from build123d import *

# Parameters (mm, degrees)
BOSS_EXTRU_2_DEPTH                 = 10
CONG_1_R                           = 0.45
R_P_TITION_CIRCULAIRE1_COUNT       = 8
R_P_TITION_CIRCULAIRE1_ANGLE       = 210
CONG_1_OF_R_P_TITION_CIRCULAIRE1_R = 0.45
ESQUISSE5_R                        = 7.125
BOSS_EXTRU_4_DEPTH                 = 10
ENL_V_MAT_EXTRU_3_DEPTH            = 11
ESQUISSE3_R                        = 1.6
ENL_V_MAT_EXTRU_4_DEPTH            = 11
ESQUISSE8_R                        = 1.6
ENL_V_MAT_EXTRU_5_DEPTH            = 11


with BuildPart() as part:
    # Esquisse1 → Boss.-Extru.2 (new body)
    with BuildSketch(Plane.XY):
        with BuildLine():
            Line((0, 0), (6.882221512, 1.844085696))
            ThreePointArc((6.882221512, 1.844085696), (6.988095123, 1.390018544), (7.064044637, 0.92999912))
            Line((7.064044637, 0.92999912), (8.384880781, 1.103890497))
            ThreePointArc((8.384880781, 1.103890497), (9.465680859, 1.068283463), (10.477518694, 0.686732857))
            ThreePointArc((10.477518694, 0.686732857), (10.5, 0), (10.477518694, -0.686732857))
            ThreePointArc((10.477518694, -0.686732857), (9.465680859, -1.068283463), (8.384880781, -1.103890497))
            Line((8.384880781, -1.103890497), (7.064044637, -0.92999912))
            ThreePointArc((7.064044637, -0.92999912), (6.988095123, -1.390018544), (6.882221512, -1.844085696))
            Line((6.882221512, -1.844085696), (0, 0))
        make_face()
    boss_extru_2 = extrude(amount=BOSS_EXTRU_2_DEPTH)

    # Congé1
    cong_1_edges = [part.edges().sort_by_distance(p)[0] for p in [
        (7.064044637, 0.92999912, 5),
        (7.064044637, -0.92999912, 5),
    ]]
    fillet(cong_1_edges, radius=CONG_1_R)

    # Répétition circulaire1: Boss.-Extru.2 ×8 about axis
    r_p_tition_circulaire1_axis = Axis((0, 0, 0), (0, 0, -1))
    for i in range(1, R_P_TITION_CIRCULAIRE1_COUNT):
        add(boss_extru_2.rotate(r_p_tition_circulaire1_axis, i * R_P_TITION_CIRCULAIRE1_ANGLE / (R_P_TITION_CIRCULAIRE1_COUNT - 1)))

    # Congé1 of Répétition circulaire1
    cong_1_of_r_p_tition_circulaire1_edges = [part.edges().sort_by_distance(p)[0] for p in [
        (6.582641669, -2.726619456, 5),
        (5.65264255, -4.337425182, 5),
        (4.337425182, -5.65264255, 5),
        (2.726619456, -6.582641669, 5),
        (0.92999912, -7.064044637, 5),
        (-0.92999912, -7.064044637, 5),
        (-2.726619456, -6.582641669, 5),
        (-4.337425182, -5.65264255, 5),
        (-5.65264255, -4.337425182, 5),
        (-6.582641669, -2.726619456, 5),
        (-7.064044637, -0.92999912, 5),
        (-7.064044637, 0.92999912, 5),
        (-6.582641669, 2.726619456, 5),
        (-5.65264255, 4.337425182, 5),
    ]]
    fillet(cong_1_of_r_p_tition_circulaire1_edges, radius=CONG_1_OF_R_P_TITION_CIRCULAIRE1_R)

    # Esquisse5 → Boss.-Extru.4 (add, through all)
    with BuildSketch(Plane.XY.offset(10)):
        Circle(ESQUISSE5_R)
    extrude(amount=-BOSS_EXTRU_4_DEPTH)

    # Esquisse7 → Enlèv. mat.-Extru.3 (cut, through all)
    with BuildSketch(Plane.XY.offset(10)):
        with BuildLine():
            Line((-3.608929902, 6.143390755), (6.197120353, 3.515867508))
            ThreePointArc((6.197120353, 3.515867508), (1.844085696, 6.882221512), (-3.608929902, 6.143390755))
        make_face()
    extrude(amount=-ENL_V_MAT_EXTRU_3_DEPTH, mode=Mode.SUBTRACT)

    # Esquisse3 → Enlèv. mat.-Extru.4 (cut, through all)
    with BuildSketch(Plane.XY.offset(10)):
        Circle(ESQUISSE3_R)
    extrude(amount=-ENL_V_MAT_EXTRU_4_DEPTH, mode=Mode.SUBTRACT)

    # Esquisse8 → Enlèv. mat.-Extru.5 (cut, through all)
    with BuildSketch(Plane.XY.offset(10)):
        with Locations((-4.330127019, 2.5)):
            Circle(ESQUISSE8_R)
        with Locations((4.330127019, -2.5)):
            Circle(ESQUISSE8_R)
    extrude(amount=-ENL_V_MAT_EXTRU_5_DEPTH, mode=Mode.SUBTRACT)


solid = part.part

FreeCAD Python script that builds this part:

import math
import FreeCAD as App
import Part
import Sketcher

V = App.Vector
Q = App.Units.Quantity


def edges_at(feature, points):
    """Names of the edges that pass closest to the given points."""
    edges = feature.Shape.Edges
    near = lambda p: min(range(len(edges)), key=lambda i: edges[i].distToShape(Part.Vertex(*p))[0])
    return sorted({f"Edge{near(p) + 1}" for p in points})

doc = App.newDocument("Part")
body = doc.addObject("PartDesign::Body", "Body")

sketch1 = body.newObject("Sketcher::SketchObject", "Sketch")
sketch1.AttachmentSupport = (doc.getObject("XY_Plane"), [""])
sketch1.MapMode = "FlatFace"
sketch1.addGeometry(Part.LineSegment(V(6.882222, 1.844086, 0), V(0, 0, 0)), False)
sketch1.addGeometry(Part.LineSegment(V(0, 0, 0), V(6.882222, -1.844086, 0)), False)
sketch1.addGeometry(Part.ArcOfCircle(Part.Circle(V(0, 0, 0), V(0, 0, 1), 7.125), math.radians(-15), math.radians(-7.5)), False)
sketch1.addGeometry(Part.LineSegment(V(7.064045, -0.929999, 0), V(8.384881, -1.10389, 0)), False)
sketch1.addGeometry(Part.ArcOfCircle(Part.Circle(V(8.817586, 2.182832, 0), V(0, 0, 1), 3.315084), math.radians(-97.5), math.radians(-59.952276)), False)
sketch1.addGeometry(Part.ArcOfCircle(Part.Circle(V(0, 0, 0), V(0, 0, 1), 10.5), math.radians(-3.75), math.radians(3.75)), False)
sketch1.addGeometry(Part.ArcOfCircle(Part.Circle(V(8.817586, -2.182832, 0), V(0, 0, 1), 3.315084), math.radians(59.952276), math.radians(97.5)), False)
sketch1.addGeometry(Part.LineSegment(V(8.384881, 1.10389, 0), V(7.064045, 0.929999, 0)), False)
sketch1.addGeometry(Part.ArcOfCircle(Part.Circle(V(0, 0, 0), V(0, 0, 1), 7.125), math.radians(7.5), math.radians(15)), False)
sketch1.addConstraint(Sketcher.Constraint("Coincident", 0, 2, 1, 1))
sketch1.addConstraint(Sketcher.Constraint("Coincident", 1, 2, 2, 1))
sketch1.addConstraint(Sketcher.Constraint("Coincident", 2, 2, 3, 1))
sketch1.addConstraint(Sketcher.Constraint("Tangent", 3, 2, 4, 1))
sketch1.addConstraint(Sketcher.Constraint("Coincident", 4, 2, 5, 1))
sketch1.addConstraint(Sketcher.Constraint("Coincident", 5, 2, 6, 1))
sketch1.addConstraint(Sketcher.Constraint("Tangent", 6, 2, 7, 1))
sketch1.addConstraint(Sketcher.Constraint("Coincident", 7, 2, 8, 1))
sketch1.addConstraint(Sketcher.Constraint("Coincident", 8, 2, 0, 1))
sketch1.addConstraint(Sketcher.Constraint("Coincident", 2, 3, -1, 1))
sketch1.addConstraint(Sketcher.Constraint("Coincident", 5, 3, -1, 1))
sketch1.addConstraint(Sketcher.Constraint("Coincident", 8, 3, -1, 1))
sketch1.addConstraint(Sketcher.Constraint("Coincident", 0, 2, -1, 1))
sketch1.addConstraint(Sketcher.Constraint("Equal", 4, 6))
sketch1.addConstraint(Sketcher.Constraint("Equal", 2, 8))
sketch1.addConstraint(Sketcher.Constraint("Symmetric", 4, 3, 6, 3, -1))
sketch1.addConstraint(Sketcher.Constraint("Vertical", 3, 2, 6, 2))
sketch1.addConstraint(Sketcher.Constraint("Vertical", 1, 2, 8, 2))
sketch1.addConstraint(Sketcher.Constraint("Radius", 5, Q("10.5 mm")))
sketch1.addConstraint(Sketcher.Constraint("Angle", 0, Q("-165 deg")))
sketch1.addConstraint(Sketcher.Constraint("Angle", 3, Q("-7.5 deg")))
sketch1.addConstraint(Sketcher.Constraint("Radius", 2, Q("7.125 mm")))
sketch1.addConstraint(Sketcher.Constraint("DistanceY", 2, 2, -1, 1, Q("0.929999 mm")))
sketch1.addConstraint(Sketcher.Constraint("Radius", 4, Q("3.315084 mm")))
sketch1.addConstraint(Sketcher.Constraint("DistanceY", 6, 3, 4, 2, Q("1.496099 mm")))
pad1 = body.newObject("PartDesign::Pad", "Pad")
pad1.Profile = sketch1
pad1.Length = 10
doc.recompute()

fillet = body.newObject("PartDesign::Fillet", "Fillet")
fillet.Base = (pad1, edges_at(pad1, [(7.064, 0.93, 5), (7.064, -0.93, 5)]))
fillet.Radius = 0.45
doc.recompute()

polarpattern = body.newObject("PartDesign::PolarPattern", "PolarPattern")
polarpattern.Originals = [pad1]
polarpattern.Axis = (doc.getObject("Z_Axis"), [""])
polarpattern.Angle = 210
polarpattern.Occurrences = 8
polarpattern.Reversed = True
body.Tip = polarpattern
doc.recompute()

fillet2 = body.newObject("PartDesign::Fillet", "Fillet001")
fillet2.Base = (polarpattern, edges_at(polarpattern, [
    (6.583, -2.727, 5),
    (5.653, -4.337, 5),
    (4.337, -5.653, 5),
    (2.727, -6.583, 5),
    (0.93, -7.064, 5),
    (-0.93, -7.064, 5),
    (-2.727, -6.583, 5),
    (-4.337, -5.653, 5),
    (-5.653, -4.337, 5),
    (-6.583, -2.727, 5),
    (-7.064, -0.93, 5),
    (-7.064, 0.93, 5),
    (-6.583, 2.727, 5),
    (-5.653, 4.337, 5),
]))
fillet2.Radius = 0.45

sketch2 = body.newObject("Sketcher::SketchObject", "Sketch001")
sketch2.AttachmentSupport = (doc.getObject("XY_Plane"), [""])
sketch2.MapMode = "FlatFace"
sketch2.AttachmentOffset = App.Placement(V(0, 0, 10), App.Rotation())
sketch2.addGeometry(Part.Circle(V(0, 0, 0), V(0, 0, 1), 7.125), False)
sketch2.addConstraint(Sketcher.Constraint("Coincident", 0, 3, -1, 1))
sketch2.addConstraint(Sketcher.Constraint("Diameter", 0, Q("14.25 mm")))
pad2 = body.newObject("PartDesign::Pad", "Pad001")
pad2.Profile = sketch2
pad2.Type = "UpToLast"
pad2.Reversed = True

sketch3 = body.newObject("Sketcher::SketchObject", "Sketch002")
sketch3.AttachmentSupport = (doc.getObject("XY_Plane"), [""])
sketch3.MapMode = "FlatFace"
sketch3.AttachmentOffset = App.Placement(V(0, 0, 10), App.Rotation())
sketch3.addGeometry(Part.LineSegment(V(-3.60893, 6.143391, 0), V(6.19712, 3.515868, 0)), False)
sketch3.addGeometry(Part.ArcOfCircle(Part.Circle(V(0, 0, 0), V(0, 0, 1), 7.125), math.radians(29.567929), math.radians(120.432071)), False)
sketch3.addConstraint(Sketcher.Constraint("Coincident", 0, 1, 1, 2))
sketch3.addConstraint(Sketcher.Constraint("Coincident", 1, 1, 0, 2))
sketch3.addConstraint(Sketcher.Constraint("Coincident", 1, 3, -1, 1))
sketch3.addConstraint(Sketcher.Constraint("Angle", 0, Q("-15 deg")))
sketch3.addConstraint(Sketcher.Constraint("Radius", 1, Q("7.125 mm")))
sketch3.addConstraint(Sketcher.Constraint("Distance", 0, Q("10.15197 mm")))
pocket1 = body.newObject("PartDesign::Pocket", "Pocket")
pocket1.Profile = sketch3
pocket1.Type = "ThroughAll"

sketch4 = body.newObject("Sketcher::SketchObject", "Sketch003")
sketch4.AttachmentSupport = (doc.getObject("XY_Plane"), [""])
sketch4.MapMode = "FlatFace"
sketch4.AttachmentOffset = App.Placement(V(0, 0, 10), App.Rotation())
sketch4.addGeometry(Part.Circle(V(0, 0, 0), V(0, 0, 1), 1.6), False)
sketch4.addConstraint(Sketcher.Constraint("Coincident", 0, 3, -1, 1))
sketch4.addConstraint(Sketcher.Constraint("Diameter", 0, Q("3.2 mm")))
pocket2 = body.newObject("PartDesign::Pocket", "Pocket001")
pocket2.Profile = sketch4
pocket2.Type = "ThroughAll"

sketch5 = body.newObject("Sketcher::SketchObject", "Sketch004")
sketch5.AttachmentSupport = (doc.getObject("XY_Plane"), [""])
sketch5.MapMode = "FlatFace"
sketch5.AttachmentOffset = App.Placement(V(0, 0, 10), App.Rotation())
sketch5.addGeometry(Part.Circle(V(-4.330127, 2.5, 0), V(0, 0, 1), 1.6), False)
sketch5.addGeometry(Part.Circle(V(4.330127, -2.5, 0), V(0, 0, 1), 1.6), False)
sketch5.addConstraint(Sketcher.Constraint("Equal", 0, 1))
sketch5.addConstraint(Sketcher.Constraint("Symmetric", 0, 3, 1, 3, -1, 1))
sketch5.addConstraint(Sketcher.Constraint("Diameter", 0, Q("3.2 mm")))
sketch5.addConstraint(Sketcher.Constraint("DistanceY", 1, 3, 0, 3, Q("5 mm")))
sketch5.addConstraint(Sketcher.Constraint("DistanceX", 0, 3, -1, 1, Q("4.330127 mm")))
pocket3 = body.newObject("PartDesign::Pocket", "Pocket002")
pocket3.Profile = sketch5
pocket3.Type = "ThroughAll"

doc.recompute()
